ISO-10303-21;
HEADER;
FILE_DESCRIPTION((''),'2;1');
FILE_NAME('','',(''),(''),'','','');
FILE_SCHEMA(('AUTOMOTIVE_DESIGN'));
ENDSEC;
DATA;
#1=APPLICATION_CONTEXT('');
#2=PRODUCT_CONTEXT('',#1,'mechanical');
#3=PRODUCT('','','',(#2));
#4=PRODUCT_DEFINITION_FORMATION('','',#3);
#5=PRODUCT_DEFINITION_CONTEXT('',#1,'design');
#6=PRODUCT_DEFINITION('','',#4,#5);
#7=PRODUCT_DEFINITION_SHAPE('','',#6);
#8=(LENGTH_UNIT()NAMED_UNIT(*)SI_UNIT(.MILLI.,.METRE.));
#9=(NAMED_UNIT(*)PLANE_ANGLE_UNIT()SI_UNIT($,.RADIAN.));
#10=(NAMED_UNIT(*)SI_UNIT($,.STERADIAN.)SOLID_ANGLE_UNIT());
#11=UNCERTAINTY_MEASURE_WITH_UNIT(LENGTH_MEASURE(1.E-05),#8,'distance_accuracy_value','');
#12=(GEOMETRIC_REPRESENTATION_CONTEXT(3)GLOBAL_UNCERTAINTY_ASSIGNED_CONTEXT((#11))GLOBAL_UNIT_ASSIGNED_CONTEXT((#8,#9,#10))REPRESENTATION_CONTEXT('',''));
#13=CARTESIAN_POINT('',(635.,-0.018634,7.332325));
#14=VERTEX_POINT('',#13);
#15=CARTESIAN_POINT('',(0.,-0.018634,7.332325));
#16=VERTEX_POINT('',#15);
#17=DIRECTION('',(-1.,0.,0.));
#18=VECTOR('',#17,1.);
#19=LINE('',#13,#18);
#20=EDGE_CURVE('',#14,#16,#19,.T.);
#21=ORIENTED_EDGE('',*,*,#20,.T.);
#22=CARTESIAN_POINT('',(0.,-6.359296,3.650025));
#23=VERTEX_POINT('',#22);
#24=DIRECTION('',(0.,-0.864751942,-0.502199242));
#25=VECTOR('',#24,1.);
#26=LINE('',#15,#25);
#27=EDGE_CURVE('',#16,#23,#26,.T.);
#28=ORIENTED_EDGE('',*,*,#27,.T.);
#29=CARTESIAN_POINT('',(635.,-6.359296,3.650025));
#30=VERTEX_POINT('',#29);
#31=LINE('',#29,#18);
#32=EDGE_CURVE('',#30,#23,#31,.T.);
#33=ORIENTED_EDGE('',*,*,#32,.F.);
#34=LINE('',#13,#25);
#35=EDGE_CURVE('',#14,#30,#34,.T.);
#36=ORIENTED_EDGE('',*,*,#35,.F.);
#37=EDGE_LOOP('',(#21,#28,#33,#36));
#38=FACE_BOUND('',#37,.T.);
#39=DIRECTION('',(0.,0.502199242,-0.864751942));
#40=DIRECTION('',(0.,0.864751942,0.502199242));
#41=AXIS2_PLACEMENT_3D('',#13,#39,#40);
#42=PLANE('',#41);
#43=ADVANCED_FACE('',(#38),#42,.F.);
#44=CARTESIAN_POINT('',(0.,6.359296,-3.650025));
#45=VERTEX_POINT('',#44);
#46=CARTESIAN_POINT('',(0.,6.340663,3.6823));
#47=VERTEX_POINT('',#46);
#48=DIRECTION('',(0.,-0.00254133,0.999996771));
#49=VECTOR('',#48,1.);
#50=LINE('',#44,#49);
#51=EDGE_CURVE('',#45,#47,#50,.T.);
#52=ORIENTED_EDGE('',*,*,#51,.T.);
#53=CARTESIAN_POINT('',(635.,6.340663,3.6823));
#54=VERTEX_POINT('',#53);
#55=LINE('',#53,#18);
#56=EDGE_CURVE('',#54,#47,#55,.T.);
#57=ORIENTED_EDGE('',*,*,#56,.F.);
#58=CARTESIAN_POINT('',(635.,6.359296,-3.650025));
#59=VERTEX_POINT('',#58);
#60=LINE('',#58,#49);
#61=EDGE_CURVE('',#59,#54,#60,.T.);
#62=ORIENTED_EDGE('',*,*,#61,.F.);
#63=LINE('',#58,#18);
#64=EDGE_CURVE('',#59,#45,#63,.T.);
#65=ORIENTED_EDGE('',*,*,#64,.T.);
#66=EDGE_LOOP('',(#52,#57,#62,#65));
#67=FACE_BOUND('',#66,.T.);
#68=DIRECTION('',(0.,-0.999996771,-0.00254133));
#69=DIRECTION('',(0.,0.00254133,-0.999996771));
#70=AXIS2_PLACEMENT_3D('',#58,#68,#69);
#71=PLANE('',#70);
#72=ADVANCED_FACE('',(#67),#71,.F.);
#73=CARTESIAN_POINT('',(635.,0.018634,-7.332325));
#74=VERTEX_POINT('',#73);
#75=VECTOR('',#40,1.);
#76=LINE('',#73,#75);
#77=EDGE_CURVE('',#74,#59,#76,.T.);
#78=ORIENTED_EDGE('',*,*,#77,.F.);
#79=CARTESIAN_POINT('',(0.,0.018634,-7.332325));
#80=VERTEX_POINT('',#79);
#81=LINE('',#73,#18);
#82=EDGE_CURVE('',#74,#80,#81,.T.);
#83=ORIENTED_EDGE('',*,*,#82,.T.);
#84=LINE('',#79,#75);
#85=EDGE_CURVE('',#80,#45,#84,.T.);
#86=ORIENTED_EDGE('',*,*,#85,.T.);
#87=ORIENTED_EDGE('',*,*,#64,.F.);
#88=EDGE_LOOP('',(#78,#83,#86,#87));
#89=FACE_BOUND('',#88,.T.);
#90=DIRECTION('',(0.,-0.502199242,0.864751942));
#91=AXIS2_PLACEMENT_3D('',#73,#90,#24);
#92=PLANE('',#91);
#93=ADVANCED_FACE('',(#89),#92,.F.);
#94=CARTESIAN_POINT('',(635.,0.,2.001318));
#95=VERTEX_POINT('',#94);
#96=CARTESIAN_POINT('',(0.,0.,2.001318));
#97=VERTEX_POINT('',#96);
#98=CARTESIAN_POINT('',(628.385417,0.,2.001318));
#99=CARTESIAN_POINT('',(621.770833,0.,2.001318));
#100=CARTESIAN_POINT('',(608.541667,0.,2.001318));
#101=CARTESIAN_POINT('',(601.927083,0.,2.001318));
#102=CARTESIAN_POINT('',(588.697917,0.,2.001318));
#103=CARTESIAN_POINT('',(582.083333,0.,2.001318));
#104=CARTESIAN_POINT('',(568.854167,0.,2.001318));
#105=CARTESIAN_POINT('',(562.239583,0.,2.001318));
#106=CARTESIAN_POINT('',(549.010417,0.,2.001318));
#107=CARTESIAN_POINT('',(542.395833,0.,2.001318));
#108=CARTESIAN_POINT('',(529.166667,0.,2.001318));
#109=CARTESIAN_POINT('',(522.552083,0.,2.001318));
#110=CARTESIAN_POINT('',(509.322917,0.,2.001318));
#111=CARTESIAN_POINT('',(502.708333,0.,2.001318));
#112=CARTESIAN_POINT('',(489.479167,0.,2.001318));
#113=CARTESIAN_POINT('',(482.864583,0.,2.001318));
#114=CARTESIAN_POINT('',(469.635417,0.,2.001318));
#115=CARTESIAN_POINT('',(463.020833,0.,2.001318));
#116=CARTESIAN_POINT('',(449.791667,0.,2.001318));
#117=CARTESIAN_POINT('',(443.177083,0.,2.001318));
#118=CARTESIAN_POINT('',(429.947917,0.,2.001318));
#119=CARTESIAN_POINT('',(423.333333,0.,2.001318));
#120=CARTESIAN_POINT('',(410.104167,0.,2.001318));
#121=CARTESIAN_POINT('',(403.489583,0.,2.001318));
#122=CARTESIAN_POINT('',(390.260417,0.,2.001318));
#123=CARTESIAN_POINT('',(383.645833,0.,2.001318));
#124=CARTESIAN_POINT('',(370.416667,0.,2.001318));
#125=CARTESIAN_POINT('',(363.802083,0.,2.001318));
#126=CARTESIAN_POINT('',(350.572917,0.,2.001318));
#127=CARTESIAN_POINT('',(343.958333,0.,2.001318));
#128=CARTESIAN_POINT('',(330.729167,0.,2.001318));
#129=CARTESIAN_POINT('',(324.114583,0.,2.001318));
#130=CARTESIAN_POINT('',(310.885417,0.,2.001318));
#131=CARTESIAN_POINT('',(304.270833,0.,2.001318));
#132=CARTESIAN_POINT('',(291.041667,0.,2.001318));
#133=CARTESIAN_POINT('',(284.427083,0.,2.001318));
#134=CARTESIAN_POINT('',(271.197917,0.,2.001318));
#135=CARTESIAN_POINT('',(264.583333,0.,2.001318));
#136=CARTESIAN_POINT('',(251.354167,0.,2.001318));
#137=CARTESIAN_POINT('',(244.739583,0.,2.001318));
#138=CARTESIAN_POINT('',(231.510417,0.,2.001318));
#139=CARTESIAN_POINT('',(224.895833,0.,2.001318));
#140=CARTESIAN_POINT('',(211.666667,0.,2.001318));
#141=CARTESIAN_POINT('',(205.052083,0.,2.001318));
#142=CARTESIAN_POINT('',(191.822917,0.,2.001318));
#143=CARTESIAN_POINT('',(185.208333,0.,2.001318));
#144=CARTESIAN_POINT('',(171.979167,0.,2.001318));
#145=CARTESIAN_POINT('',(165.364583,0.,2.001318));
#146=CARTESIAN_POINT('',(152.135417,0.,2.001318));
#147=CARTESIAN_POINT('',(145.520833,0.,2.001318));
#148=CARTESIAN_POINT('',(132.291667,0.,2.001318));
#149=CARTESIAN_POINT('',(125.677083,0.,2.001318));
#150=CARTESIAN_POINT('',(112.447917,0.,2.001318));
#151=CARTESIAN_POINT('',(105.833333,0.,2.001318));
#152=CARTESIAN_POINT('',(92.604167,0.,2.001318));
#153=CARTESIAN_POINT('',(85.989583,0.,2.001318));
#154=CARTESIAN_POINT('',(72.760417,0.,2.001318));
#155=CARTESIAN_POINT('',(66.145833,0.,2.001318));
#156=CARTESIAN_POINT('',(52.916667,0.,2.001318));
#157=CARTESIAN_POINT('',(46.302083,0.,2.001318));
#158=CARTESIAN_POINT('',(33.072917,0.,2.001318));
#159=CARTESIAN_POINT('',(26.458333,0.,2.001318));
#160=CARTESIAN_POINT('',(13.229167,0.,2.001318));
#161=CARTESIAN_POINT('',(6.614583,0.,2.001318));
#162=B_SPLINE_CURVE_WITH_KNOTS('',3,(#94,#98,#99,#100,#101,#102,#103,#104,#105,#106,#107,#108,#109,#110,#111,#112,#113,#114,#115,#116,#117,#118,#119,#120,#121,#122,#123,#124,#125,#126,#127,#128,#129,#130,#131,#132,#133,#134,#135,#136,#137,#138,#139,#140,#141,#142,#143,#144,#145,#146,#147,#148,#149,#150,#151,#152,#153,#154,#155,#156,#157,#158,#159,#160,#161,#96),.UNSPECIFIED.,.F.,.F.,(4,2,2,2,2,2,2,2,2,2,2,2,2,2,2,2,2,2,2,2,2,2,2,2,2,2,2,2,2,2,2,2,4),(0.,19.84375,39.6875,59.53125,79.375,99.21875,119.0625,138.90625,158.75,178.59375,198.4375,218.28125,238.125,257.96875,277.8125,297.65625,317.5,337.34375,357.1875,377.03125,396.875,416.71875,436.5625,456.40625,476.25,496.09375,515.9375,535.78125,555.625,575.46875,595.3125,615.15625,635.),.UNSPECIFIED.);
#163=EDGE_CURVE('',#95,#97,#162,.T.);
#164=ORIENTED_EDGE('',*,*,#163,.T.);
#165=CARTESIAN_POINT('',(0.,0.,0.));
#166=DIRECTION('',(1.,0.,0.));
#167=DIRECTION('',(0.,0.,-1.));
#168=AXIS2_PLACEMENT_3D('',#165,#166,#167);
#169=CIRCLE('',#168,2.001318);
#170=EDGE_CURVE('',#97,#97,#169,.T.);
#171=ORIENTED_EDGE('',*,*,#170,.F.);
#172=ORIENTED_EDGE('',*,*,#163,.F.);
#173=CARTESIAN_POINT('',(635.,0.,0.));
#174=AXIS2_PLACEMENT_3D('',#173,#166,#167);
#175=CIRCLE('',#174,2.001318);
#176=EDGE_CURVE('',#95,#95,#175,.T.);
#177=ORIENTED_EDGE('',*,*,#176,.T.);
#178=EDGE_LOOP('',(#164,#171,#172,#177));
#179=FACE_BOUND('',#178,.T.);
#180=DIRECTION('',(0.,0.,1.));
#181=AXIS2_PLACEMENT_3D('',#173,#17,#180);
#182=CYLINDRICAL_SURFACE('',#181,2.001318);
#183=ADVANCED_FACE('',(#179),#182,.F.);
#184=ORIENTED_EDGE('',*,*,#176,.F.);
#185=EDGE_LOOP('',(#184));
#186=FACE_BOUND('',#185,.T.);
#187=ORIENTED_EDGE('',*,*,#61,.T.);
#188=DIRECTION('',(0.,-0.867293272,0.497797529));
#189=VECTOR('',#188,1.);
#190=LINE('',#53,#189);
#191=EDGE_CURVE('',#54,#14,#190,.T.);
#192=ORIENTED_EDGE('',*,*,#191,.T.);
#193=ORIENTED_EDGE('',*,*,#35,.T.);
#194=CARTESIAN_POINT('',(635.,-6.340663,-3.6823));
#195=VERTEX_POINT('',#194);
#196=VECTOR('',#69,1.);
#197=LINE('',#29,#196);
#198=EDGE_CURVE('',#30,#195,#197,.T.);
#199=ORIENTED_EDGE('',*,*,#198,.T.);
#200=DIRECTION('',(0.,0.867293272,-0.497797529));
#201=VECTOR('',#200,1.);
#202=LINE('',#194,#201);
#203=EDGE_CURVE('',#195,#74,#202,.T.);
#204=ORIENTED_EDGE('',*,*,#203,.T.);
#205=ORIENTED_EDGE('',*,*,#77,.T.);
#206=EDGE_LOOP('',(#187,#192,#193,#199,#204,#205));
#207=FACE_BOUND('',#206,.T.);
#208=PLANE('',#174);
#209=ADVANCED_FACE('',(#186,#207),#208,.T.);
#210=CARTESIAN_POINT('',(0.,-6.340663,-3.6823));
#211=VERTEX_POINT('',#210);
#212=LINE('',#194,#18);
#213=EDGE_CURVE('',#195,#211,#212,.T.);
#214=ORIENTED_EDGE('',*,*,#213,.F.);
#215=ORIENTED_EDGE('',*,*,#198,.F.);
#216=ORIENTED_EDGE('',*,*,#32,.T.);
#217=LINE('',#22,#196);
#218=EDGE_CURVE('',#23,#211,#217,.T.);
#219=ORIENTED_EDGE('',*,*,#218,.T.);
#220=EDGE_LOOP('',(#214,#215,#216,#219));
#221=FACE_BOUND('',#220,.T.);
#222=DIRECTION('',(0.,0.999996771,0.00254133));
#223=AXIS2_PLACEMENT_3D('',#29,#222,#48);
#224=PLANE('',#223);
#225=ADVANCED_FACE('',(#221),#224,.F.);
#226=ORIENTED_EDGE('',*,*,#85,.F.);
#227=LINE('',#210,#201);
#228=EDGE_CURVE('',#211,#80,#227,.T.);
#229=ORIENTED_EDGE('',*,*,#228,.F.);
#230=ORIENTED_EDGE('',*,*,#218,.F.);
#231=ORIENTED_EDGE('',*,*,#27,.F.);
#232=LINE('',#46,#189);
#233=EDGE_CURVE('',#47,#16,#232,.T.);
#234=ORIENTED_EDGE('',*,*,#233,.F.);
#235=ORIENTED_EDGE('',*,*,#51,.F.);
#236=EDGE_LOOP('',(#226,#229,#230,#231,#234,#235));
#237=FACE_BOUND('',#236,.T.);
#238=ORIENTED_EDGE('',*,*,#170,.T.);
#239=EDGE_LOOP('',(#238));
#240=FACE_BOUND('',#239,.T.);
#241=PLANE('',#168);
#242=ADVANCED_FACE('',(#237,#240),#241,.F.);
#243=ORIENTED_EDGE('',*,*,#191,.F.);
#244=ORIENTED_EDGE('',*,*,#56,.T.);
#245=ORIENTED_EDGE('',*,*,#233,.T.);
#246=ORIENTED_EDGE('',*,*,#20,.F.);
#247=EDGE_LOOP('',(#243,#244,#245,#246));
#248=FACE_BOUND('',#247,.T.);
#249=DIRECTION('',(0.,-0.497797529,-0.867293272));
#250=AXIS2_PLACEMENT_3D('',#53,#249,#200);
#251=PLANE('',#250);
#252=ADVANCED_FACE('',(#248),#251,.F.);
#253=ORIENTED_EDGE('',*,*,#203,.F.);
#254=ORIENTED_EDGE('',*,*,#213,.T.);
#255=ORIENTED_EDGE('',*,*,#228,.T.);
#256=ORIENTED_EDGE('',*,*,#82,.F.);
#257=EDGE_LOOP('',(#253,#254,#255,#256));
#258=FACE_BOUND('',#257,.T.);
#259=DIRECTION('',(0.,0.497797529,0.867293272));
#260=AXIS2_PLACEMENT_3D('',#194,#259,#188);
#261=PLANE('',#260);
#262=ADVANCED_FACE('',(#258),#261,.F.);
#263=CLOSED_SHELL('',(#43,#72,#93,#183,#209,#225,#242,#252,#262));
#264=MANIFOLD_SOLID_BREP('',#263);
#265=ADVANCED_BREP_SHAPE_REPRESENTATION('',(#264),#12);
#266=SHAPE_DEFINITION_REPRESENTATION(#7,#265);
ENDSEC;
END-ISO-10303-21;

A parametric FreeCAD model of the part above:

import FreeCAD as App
import Part
import Sketcher
from FreeCAD import Vector
Q = App.Units.Quantity

doc = App.newDocument("Part")
body = doc.addObject("PartDesign::Body", "Body")

sketch1 = body.newObject("Sketcher::SketchObject", "Sketch")
sketch1.AttachmentSupport = (doc.getObject("YZ_Plane"), [""])
sketch1.MapMode = "FlatFace"
sketch1.addGeometry([
    Part.LineSegment(Vector(6.4, -3.7, 0), Vector(6.3, 3.7, 0)),
    Part.LineSegment(Vector(6.3, 3.7, 0), Vector(0, 7.3, 0)),
    Part.LineSegment(Vector(0, 7.3, 0), Vector(-6.4, 3.7, 0)),
    Part.LineSegment(Vector(-6.4, 3.7, 0), Vector(-6.3, -3.7, 0)),
    Part.LineSegment(Vector(-6.3, -3.7, 0), Vector(0, -7.3, 0)),
    Part.LineSegment(Vector(0, -7.3, 0), Vector(6.4, -3.7, 0)),
    Part.Circle(Vector(0, 0, 0), Vector(0, 0, 1), 2),
], False)
sketch1.addConstraint([
    Sketcher.Constraint("Coincident", 0, 2, 1, 1),
    Sketcher.Constraint("Coincident", 1, 2, 2, 1),
    Sketcher.Constraint("Coincident", 2, 2, 3, 1),
    Sketcher.Constraint("Coincident", 3, 2, 4, 1),
    Sketcher.Constraint("Coincident", 4, 2, 5, 1),
    Sketcher.Constraint("Coincident", 5, 2, 0, 1),
    Sketcher.Constraint("Coincident", 6, 3, -1, 1),
    Sketcher.Constraint("Symmetric", 0, 2, 3, 2, -1, 1),
    Sketcher.Constraint("Symmetric", 1, 2, 4, 2, -1, 1),
    Sketcher.Constraint("Symmetric", 2, 2, 5, 2, -1, 1),
    Sketcher.Constraint("Equal", 0, 1),
    Sketcher.Constraint("Equal", 1, 2),
    Sketcher.Constraint("Diameter", 6, Q("4.002637 mm")),
    Sketcher.Constraint("DistanceY", -1, 1, 0, 2, Q("3.6823 mm")),
    Sketcher.Constraint("DistanceY", 2, 2, 1, 2, Q("3.6823 mm")),
    Sketcher.Constraint("Distance", 0, Q("7.332348 mm")),
    Sketcher.Constraint("DistanceX", 3, 2, 1, 2, Q("6.322029 mm")),
])
pad1 = body.newObject("PartDesign::Pad", "Pad")
pad1.Profile = sketch1
pad1.Length = Q("25 in")

doc.recompute()
